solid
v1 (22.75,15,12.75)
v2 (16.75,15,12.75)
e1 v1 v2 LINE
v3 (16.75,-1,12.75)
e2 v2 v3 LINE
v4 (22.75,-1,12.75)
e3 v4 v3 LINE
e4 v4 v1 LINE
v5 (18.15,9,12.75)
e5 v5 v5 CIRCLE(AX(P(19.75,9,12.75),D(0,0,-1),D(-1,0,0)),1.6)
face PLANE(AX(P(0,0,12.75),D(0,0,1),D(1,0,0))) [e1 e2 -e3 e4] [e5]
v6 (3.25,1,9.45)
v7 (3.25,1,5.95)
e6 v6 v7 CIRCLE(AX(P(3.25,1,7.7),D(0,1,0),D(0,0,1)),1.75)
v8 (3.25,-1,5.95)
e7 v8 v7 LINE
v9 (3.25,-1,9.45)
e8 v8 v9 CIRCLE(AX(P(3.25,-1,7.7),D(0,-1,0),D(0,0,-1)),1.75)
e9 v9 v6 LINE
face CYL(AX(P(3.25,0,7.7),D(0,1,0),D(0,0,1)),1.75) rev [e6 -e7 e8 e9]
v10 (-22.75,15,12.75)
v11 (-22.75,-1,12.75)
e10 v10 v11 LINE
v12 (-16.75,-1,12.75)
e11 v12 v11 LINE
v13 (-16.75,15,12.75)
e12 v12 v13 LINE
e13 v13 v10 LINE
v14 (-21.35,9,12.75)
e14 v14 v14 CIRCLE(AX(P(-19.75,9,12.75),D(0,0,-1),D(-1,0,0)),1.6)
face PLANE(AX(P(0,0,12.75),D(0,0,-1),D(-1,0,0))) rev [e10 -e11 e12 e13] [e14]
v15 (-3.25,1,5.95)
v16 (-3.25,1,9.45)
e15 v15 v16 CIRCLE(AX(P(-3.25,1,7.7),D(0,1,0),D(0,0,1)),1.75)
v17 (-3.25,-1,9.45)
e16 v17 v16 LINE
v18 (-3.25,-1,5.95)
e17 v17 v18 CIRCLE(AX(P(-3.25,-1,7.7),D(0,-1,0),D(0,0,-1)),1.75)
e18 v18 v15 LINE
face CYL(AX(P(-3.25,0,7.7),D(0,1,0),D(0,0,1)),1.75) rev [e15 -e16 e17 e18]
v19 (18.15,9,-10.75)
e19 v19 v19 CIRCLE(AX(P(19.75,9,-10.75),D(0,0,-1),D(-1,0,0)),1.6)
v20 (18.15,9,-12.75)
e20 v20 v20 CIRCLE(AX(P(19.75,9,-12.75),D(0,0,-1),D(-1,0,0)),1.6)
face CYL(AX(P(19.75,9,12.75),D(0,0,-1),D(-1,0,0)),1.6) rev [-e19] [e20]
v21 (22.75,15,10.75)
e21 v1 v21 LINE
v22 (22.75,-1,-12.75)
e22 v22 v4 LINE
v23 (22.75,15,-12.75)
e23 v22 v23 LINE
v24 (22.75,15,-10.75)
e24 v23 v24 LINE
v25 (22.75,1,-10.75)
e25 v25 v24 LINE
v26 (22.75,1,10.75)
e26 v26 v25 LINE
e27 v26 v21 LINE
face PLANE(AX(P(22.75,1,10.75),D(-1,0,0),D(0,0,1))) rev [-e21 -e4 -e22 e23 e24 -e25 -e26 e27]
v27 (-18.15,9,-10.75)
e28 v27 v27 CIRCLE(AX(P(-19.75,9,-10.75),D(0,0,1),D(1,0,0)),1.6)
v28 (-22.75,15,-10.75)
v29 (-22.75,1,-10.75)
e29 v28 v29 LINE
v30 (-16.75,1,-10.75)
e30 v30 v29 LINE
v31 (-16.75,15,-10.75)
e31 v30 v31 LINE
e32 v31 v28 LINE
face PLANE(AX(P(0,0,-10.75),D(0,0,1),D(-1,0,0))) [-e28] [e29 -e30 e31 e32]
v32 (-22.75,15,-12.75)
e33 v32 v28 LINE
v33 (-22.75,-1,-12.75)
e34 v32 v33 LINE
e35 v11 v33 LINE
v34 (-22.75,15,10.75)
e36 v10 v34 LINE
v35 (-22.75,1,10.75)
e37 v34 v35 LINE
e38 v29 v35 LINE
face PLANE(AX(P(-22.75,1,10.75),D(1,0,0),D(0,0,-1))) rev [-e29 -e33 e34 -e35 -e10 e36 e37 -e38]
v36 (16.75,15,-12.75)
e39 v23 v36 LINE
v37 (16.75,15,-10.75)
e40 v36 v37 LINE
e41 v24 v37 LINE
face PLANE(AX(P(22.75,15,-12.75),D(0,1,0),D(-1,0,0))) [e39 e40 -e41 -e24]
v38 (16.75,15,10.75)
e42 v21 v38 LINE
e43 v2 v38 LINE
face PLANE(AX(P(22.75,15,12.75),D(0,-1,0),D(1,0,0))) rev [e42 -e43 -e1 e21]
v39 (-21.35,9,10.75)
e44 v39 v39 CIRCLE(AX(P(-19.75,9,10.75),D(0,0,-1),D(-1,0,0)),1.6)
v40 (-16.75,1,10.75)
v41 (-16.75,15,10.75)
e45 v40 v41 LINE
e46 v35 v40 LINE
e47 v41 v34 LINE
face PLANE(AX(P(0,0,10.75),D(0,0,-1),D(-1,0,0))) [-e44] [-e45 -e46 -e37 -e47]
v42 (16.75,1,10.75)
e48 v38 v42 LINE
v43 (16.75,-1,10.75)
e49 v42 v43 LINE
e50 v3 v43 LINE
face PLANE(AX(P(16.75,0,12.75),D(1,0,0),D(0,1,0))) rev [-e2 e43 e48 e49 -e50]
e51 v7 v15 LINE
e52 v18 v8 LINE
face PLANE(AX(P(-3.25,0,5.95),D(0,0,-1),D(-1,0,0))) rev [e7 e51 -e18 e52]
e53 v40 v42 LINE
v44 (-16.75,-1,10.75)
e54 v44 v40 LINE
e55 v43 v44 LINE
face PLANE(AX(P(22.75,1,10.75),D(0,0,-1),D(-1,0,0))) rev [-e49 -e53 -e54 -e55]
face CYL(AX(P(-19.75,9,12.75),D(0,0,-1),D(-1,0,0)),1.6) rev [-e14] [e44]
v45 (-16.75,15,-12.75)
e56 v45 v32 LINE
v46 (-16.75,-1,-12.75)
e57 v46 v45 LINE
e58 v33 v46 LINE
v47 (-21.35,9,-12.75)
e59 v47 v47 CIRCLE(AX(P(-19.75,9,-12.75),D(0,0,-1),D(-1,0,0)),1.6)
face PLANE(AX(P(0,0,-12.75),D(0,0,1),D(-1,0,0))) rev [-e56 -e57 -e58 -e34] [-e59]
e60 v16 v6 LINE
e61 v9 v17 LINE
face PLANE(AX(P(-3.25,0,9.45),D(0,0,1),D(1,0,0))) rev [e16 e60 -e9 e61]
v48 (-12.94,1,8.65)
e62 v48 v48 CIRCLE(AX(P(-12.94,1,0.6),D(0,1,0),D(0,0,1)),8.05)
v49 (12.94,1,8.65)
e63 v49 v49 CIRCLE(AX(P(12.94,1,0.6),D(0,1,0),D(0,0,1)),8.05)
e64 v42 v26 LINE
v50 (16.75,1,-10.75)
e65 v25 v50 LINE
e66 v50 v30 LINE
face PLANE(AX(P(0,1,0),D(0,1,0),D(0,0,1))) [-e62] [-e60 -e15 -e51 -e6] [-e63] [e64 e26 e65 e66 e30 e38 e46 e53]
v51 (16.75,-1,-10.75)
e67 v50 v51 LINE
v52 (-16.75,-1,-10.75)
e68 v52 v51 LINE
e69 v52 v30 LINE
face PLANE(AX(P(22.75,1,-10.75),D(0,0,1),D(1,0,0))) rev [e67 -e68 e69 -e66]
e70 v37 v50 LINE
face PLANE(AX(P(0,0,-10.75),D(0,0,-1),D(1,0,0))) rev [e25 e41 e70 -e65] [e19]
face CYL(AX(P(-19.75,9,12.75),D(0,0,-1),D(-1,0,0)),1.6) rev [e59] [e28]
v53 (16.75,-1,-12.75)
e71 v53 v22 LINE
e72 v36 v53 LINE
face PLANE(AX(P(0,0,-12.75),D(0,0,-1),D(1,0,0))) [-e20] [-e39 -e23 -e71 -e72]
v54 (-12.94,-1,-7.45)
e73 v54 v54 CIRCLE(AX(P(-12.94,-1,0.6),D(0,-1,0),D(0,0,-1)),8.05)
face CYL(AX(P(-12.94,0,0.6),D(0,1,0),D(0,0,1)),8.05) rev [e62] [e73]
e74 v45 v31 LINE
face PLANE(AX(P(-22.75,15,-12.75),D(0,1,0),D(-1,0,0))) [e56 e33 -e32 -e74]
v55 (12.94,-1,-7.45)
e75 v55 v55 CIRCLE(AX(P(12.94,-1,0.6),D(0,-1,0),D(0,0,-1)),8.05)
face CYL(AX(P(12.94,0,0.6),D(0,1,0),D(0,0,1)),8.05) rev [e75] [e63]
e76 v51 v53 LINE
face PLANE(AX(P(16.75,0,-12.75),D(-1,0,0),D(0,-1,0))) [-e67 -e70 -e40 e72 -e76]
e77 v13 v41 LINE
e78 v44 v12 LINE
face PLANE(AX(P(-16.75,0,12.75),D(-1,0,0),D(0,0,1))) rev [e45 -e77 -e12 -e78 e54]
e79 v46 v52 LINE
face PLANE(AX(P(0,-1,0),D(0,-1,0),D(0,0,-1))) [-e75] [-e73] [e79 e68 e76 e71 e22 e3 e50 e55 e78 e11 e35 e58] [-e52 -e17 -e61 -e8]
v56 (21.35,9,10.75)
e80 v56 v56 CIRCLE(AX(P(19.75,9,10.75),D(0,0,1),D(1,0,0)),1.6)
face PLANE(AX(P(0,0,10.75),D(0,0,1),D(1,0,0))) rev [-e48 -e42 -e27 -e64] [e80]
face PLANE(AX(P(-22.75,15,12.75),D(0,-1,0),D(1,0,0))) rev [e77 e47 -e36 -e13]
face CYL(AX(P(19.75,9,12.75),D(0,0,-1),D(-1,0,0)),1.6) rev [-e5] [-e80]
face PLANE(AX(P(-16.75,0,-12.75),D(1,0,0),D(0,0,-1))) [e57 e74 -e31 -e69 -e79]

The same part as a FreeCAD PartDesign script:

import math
import FreeCAD as App
import Part
import Sketcher

V = App.Vector

doc = App.newDocument("Part")
params = doc.addObject("Spreadsheet::Sheet", "Params")
for row, (alias, value) in enumerate([
    ("sketch1_width", "45.5 mm"),
    ("sketch1_height", "21.5 mm"),
    ("pad1_length", "1 mm"),
    ("sketch2_width", "6 mm"),
    ("sketch2_height", "15 mm"),
    ("pad2_length", "2 mm"),
    ("sketch3_diameter", "16.1 mm"),
    ("sketch4_radius", "1.75 mm"),
    ("sketch4_width", "6.5 mm"),
    ("sketch5_diameter", "3.2 mm"),
    ("sketch6_diameter", "16.1 mm"),
    ("sketch6_width", "6 mm"),
    ("sketch6_height", "2 mm"),
    ("sketch6_radius", "1.75 mm"),
    ("sketch6_width2", "33.5 mm"),
    ("pad3_length", "1 mm"),
], start=1):
    params.set(f"A{row}", alias)
    params.set(f"B{row}", "=" + value)
    params.setAlias(f"B{row}", alias)

body = doc.addObject("PartDesign::Body", "Body")

sketch1 = body.newObject("Sketcher::SketchObject", "Sketch")
sketch1.AttachmentSupport = (doc.getObject("XZ_Plane"), [""])
sketch1.MapMode = "FlatFace"
sketch1.addGeometry([
    Part.LineSegment(V(-22.75, -10.75, 0), V(-22.75, 10.75, 0)),
    Part.LineSegment(V(-22.75, 10.75, 0), V(22.75, 10.75, 0)),
    Part.LineSegment(V(22.75, 10.75, 0), V(22.75, -10.75, 0)),
    Part.LineSegment(V(22.75, -10.75, 0), V(-22.75, -10.75, 0)),
], False)
sketch1.addConstraint([
    Sketcher.Constraint("Coincident", 0, 2, 1, 1),
    Sketcher.Constraint("Coincident", 1, 2, 2, 1),
    Sketcher.Constraint("Coincident", 2, 2, 3, 1),
    Sketcher.Constraint("Coincident", 3, 2, 0, 1),
    Sketcher.Constraint("Vertical", 0),
    Sketcher.Constraint("Horizontal", 1),
    Sketcher.Constraint("Vertical", 2),
    Sketcher.Constraint("Horizontal", 3),
    Sketcher.Constraint("Symmetric", 0, 2, 2, 2, -1, 1),
    Sketcher.Constraint("DistanceX", 1, 1, 1, 2, 45.5),
    Sketcher.Constraint("DistanceY", 0, 1, 0, 2, 21.5),
])
sketch1.setExpression("Constraints[9]", "Params.sketch1_width")
sketch1.setExpression("Constraints[10]", "Params.sketch1_height")
pad1 = body.newObject("PartDesign::Pad", "Pad")
pad1.Profile = sketch1
pad1.setExpression("Length", "Params.pad1_length")
pad1.Reversed = True

sketch2 = body.newObject("Sketcher::SketchObject", "Sketch001")
sketch2.AttachmentSupport = (doc.getObject("XY_Plane"), [""])
sketch2.MapMode = "FlatFace"
sketch2.AttachmentOffset = App.Placement(V(0, 0, 10.75), App.Rotation())
sketch2.addGeometry([
    Part.LineSegment(V(-22.75, 15, 0), V(-22.75, 0, 0)),
    Part.LineSegment(V(-22.75, 0, 0), V(-16.75, 0, 0)),
    Part.LineSegment(V(-16.75, 0, 0), V(-16.75, 15, 0)),
    Part.LineSegment(V(-16.75, 15, 0), V(-22.75, 15, 0)),
    Part.LineSegment(V(16.75, 15, 0), V(16.75, 0, 0)),
    Part.LineSegment(V(16.75, 0, 0), V(22.75, 0, 0)),
    Part.LineSegment(V(22.75, 0, 0), V(22.75, 15, 0)),
    Part.LineSegment(V(22.75, 15, 0), V(16.75, 15, 0)),
], False)
sketch2.addConstraint([
    Sketcher.Constraint("Coincident", 0, 2, 1, 1),
    Sketcher.Constraint("Coincident", 1, 2, 2, 1),
    Sketcher.Constraint("Coincident", 2, 2, 3, 1),
    Sketcher.Constraint("Coincident", 3, 2, 0, 1),
    Sketcher.Constraint("Coincident", 4, 2, 5, 1),
    Sketcher.Constraint("Coincident", 5, 2, 6, 1),
    Sketcher.Constraint("Coincident", 6, 2, 7, 1),
    Sketcher.Constraint("Coincident", 7, 2, 4, 1),
    Sketcher.Constraint("Vertical", 0),
    Sketcher.Constraint("Horizontal", 1),
    Sketcher.Constraint("Vertical", 2),
    Sketcher.Constraint("Horizontal", 3),
    Sketcher.Constraint("Vertical", 4),
    Sketcher.Constraint("Horizontal", 5),
    Sketcher.Constraint("Vertical", 6),
    Sketcher.Constraint("Horizontal", 7),
    Sketcher.Constraint("Symmetric", 1, 2, 4, 2, -1, 1),
    Sketcher.Constraint("Symmetric", 0, 2, 5, 2, -2),
    Sketcher.Constraint("Horizontal", 3, 2, 6, 2),
    Sketcher.Constraint("DistanceX", 1, 1, 1, 2, 6.0),
    Sketcher.Constraint("DistanceY", 0, 2, 0, 1, 15.0),
    Sketcher.Constraint("DistanceX", 1, 2, 4, 2, 33.5),
])
sketch2.setExpression("Constraints[19]", "Params.sketch2_width")
sketch2.setExpression("Constraints[20]", "Params.sketch2_height")
pad2 = body.newObject("PartDesign::Pad", "Pad001")
pad2.Profile = sketch2
pad2.setExpression("Length", "Params.pad2_length")
doc.recompute()

mirrored = body.newObject("PartDesign::Mirrored", "Mirrored")
mirrored.Originals = [pad2]
mirrored.MirrorPlane = (doc.getObject("XY_Plane"), [""])
body.Tip = mirrored

sketch3 = body.newObject("Sketcher::SketchObject", "Sketch002")
sketch3.AttachmentSupport = (doc.getObject("XZ_Plane"), [""])
sketch3.MapMode = "FlatFace"
sketch3.AttachmentOffset = App.Placement(V(0, 0, -1), App.Rotation())
sketch3.addGeometry([
    Part.Circle(V(-12.94, 0.6, 0), V(0, 0, 1), 8.05),
    Part.Circle(V(12.94, 0.6, 0), V(0, 0, 1), 8.05),
], False)
sketch3.addConstraint([
    Sketcher.Constraint("Equal", 0, 1),
    Sketcher.Constraint("Symmetric", 0, 3, 1, 3, -2),
    Sketcher.Constraint("Diameter", 0, 16.1),
    Sketcher.Constraint("DistanceY", -1, 1, 0, 3, 0.6),
    Sketcher.Constraint("DistanceX", 0, 3, -1, 1, 12.94),
])
sketch3.setExpression("Constraints[2]", "Params.sketch3_diameter")
pocket1 = body.newObject("PartDesign::Pocket", "Pocket")
pocket1.Profile = sketch3
pocket1.Type = "ThroughAll"
pocket1.Reversed = True

sketch4 = body.newObject("Sketcher::SketchObject", "Sketch003")
sketch4.AttachmentSupport = (doc.getObject("XZ_Plane"), [""])
sketch4.MapMode = "FlatFace"
sketch4.AttachmentOffset = App.Placement(V(0, 0, -1), App.Rotation())
sketch4.addGeometry([
    Part.LineSegment(V(3.25, 5.95, 0), V(-3.25, 5.95, 0)),
    Part.ArcOfCircle(Part.Circle(V(-3.25, 7.7, 0), V(0, 0, 1), 1.75), math.radians(90), math.radians(270)),
    Part.LineSegment(V(-3.25, 9.45, 0), V(3.25, 9.45, 0)),
    Part.ArcOfCircle(Part.Circle(V(3.25, 7.7, 0), V(0, 0, 1), 1.75), math.radians(-90), math.radians(90)),
], False)
sketch4.addConstraint([
    Sketcher.Constraint("Tangent", 0, 2, 1, 2),
    Sketcher.Constraint("Tangent", 1, 1, 2, 1),
    Sketcher.Constraint("Tangent", 2, 2, 3, 2),
    Sketcher.Constraint("Tangent", 3, 1, 0, 1),
    Sketcher.Constraint("Horizontal", 0),
    Sketcher.Constraint("Horizontal", 2),
    Sketcher.Constraint("Radius", 1, 1.75),
    Sketcher.Constraint("DistanceX", 0, 2, 0, 1, 6.5),
    Sketcher.Constraint("DistanceY", -1, 1, 1, 3, 7.7),
    Sketcher.Constraint("DistanceX", 1, 3, -1, 1, 3.25),
])
sketch4.setExpression("Constraints[6]", "Params.sketch4_radius")
sketch4.setExpression("Constraints[7]", "Params.sketch4_width")
pocket2 = body.newObject("PartDesign::Pocket", "Pocket001")
pocket2.Profile = sketch4
pocket2.Type = "ThroughAll"
pocket2.Reversed = True

sketch5 = body.newObject("Sketcher::SketchObject", "Sketch004")
sketch5.AttachmentSupport = (doc.getObject("XY_Plane"), [""])
sketch5.MapMode = "FlatFace"
sketch5.AttachmentOffset = App.Placement(V(0, 0, -12.75), App.Rotation())
sketch5.addGeometry([
    Part.Circle(V(-19.75, 9, 0), V(0, 0, 1), 1.6),
    Part.Circle(V(19.75, 9, 0), V(0, 0, 1), 1.6),
], False)
sketch5.addConstraint([
    Sketcher.Constraint("Equal", 0, 1),
    Sketcher.Constraint("Symmetric", 0, 3, 1, 3, -2),
    Sketcher.Constraint("Diameter", 0, 3.2),
    Sketcher.Constraint("DistanceY", -1, 1, 0, 3, 9.0),
    Sketcher.Constraint("DistanceX", 0, 3, 1, 3, 39.5),
])
sketch5.setExpression("Constraints[2]", "Params.sketch5_diameter")
pocket3 = body.newObject("PartDesign::Pocket", "Pocket002")
pocket3.Profile = sketch5
pocket3.Type = "ThroughAll"
pocket3.Reversed = True

sketch6 = body.newObject("Sketcher::SketchObject", "Sketch005")
sketch6.AttachmentSupport = (doc.getObject("XZ_Plane"), [""])
sketch6.MapMode = "FlatFace"
sketch6.addGeometry([
    Part.LineSegment(V(-22.75, 12.75, 0), V(-22.75, -12.75, 0)),
    Part.LineSegment(V(-22.75, -12.75, 0), V(-16.75, -12.75, 0)),
    Part.LineSegment(V(-16.75, -12.75, 0), V(-16.75, -10.75, 0)),
    Part.LineSegment(V(-16.75, -10.75, 0), V(16.75, -10.75, 0)),
    Part.LineSegment(V(16.75, -10.75, 0), V(16.75, -12.75, 0)),
    Part.LineSegment(V(16.75, -12.75, 0), V(22.75, -12.75, 0)),
    Part.LineSegment(V(22.75, -12.75, 0), V(22.75, 12.75, 0)),
    Part.LineSegment(V(22.75, 12.75, 0), V(16.75, 12.75, 0)),
    Part.LineSegment(V(16.75, 12.75, 0), V(16.75, 10.75, 0)),
    Part.LineSegment(V(16.75, 10.75, 0), V(-16.75, 10.75, 0)),
    Part.LineSegment(V(-16.75, 10.75, 0), V(-16.75, 12.75, 0)),
    Part.LineSegment(V(-16.75, 12.75, 0), V(-22.75, 12.75, 0)),
    Part.Circle(V(-12.94, 0.6, 0), V(0, 0, 1), 8.05),
    Part.Circle(V(12.94, 0.6, 0), V(0, 0, 1), 8.05),
    Part.ArcOfCircle(Part.Circle(V(3.25, 7.7, 0), V(0, 0, 1), 1.75), math.radians(-90), math.radians(90)),
    Part.LineSegment(V(3.25, 5.95, 0), V(-3.25, 5.95, 0)),
    Part.ArcOfCircle(Part.Circle(V(-3.25, 7.7, 0), V(0, 0, 1), 1.75), math.radians(90), math.radians(270)),
    Part.LineSegment(V(-3.25, 9.45, 0), V(3.25, 9.45, 0)),
], False)
sketch6.addConstraint([
    Sketcher.Constraint("Coincident", 0, 2, 1, 1),
    Sketcher.Constraint("Coincident", 1, 2, 2, 1),
    Sketcher.Constraint("Coincident", 2, 2, 3, 1),
    Sketcher.Constraint("Coincident", 3, 2, 4, 1),
    Sketcher.Constraint("Coincident", 4, 2, 5, 1),
    Sketcher.Constraint("Coincident", 5, 2, 6, 1),
    Sketcher.Constraint("Coincident", 6, 2, 7, 1),
    Sketcher.Constraint("Coincident", 7, 2, 8, 1),
    Sketcher.Constraint("Coincident", 8, 2, 9, 1),
    Sketcher.Constraint("Coincident", 9, 2, 10, 1),
    Sketcher.Constraint("Coincident", 10, 2, 11, 1),
    Sketcher.Constraint("Coincident", 11, 2, 0, 1),
    Sketcher.Constraint("Tangent", 14, 1, 15, 1),
    Sketcher.Constraint("Tangent", 15, 2, 16, 2),
    Sketcher.Constraint("Tangent", 16, 1, 17, 1),
    Sketcher.Constraint("Tangent", 17, 2, 14, 2),
    Sketcher.Constraint("Vertical", 0),
    Sketcher.Constraint("Horizontal", 1),
    Sketcher.Constraint("Vertical", 2),
    Sketcher.Constraint("Horizontal", 3),
    Sketcher.Constraint("Vertical", 4),
    Sketcher.Constraint("Horizontal", 5),
    Sketcher.Constraint("Vertical", 6),
    Sketcher.Constraint("Horizontal", 7),
    Sketcher.Constraint("Vertical", 8),
    Sketcher.Constraint("Horizontal", 9),
    Sketcher.Constraint("Vertical", 10),
    Sketcher.Constraint("Horizontal", 11),
    Sketcher.Constraint("Horizontal", 15),
    Sketcher.Constraint("Horizontal", 17),
    Sketcher.Constraint("Equal", 12, 13),
    Sketcher.Constraint("Symmetric", 0, 2, 6, 2, -1, 1),
    Sketcher.Constraint("Symmetric", 2, 2, 8, 2, -1, 1),
    Sketcher.Constraint("Symmetric", 4, 2, 10, 2, -1, 1),
    Sketcher.Constraint("Symmetric", 12, 3, 13, 3, -2),
    Sketcher.Constraint("Symmetric", 1, 2, 4, 2, -2),
    Sketcher.Constraint("Diameter", 12, 16.1),
    Sketcher.Constraint("DistanceX", 1, 1, 1, 2, 6.0),
    Sketcher.Constraint("DistanceY", 2, 1, 2, 2, 2.0),
    Sketcher.Constraint("Radius", 14, 1.75),
    Sketcher.Constraint("DistanceX", 3, 1, 3, 2, 33.5),
    Sketcher.Constraint("DistanceX", 15, 2, 15, 1, 6.5),
    Sketcher.Constraint("DistanceY", 0, 2, 0, 1, 25.5),
    Sketcher.Constraint("DistanceX", 0, 2, 14, 3, 26.0),
    Sketcher.Constraint("DistanceY", -1, 1, 12, 3, 0.6),
    Sketcher.Constraint("DistanceY", -1, 1, 14, 3, 7.7),
    Sketcher.Constraint("DistanceX", 12, 3, -1, 1, 12.94),
])
sketch6.setExpression("Constraints[36]", "Params.sketch6_diameter")
sketch6.setExpression("Constraints[37]", "Params.sketch6_width")
sketch6.setExpression("Constraints[38]", "Params.sketch6_height")
sketch6.setExpression("Constraints[39]", "Params.sketch6_radius")
sketch6.setExpression("Constraints[40]", "Params.sketch6_width2")
pad3 = body.newObject("PartDesign::Pad", "Pad002")
pad3.Profile = sketch6
pad3.setExpression("Length", "Params.pad3_length")

doc.recompute()
